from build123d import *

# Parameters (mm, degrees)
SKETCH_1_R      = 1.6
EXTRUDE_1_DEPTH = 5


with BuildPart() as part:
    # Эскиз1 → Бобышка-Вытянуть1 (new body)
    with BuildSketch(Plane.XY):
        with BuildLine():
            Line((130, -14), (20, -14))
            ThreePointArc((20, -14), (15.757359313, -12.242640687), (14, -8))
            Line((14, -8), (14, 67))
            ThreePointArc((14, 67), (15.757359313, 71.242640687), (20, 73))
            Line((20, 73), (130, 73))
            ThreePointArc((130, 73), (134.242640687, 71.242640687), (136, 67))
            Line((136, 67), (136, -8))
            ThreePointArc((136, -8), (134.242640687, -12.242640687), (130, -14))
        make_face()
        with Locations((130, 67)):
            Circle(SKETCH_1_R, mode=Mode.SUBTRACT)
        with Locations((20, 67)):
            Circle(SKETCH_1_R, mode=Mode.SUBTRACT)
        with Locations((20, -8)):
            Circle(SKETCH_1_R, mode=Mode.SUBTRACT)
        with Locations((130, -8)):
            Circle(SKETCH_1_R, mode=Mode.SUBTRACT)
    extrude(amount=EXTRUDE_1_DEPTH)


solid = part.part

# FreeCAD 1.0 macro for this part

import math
import FreeCAD as App
import Part
import Sketcher
from FreeCAD import Vector

doc = App.newDocument("Part")
params = doc.addObject("Spreadsheet::Sheet", "Params")
for row, (alias, value) in enumerate([
    ("sketch1_radius", "6 mm"),
    ("sketch1_diameter", "3.2 mm"),
    ("sketch1_width", "110 mm"),
    ("sketch1_height", "75 mm"),
    ("pad1_length", "5 mm"),
], start=1):
    params.set(f"A{row}", alias)
    params.set(f"B{row}", "=" + value)
    params.setAlias(f"B{row}", alias)

body = doc.addObject("PartDesign::Body", "Body")

# Sketch on XY plane
sketch1 = body.newObject("Sketcher::SketchObject", "Sketch")
sketch1.AttachmentSupport = (doc.getObject("XY_Plane"), [""])
sketch1.MapMode = "FlatFace"
sketch1.addGeometry([
    Part.LineSegment(Vector(20, -14, 0), Vector(130, -14, 0)),  # 0
    Part.ArcOfCircle(Part.Circle(Vector(130, -8, 0), Vector(0, 0, 1), 6), math.radians(-90), math.radians(0)),  # 1
    Part.LineSegment(Vector(136, -8, 0), Vector(136, 67, 0)),  # 2
    Part.ArcOfCircle(Part.Circle(Vector(130, 67, 0), Vector(0, 0, 1), 6), math.radians(0), math.radians(90)),  # 3
    Part.LineSegment(Vector(130, 73, 0), Vector(20, 73, 0)),  # 4
    Part.ArcOfCircle(Part.Circle(Vector(20, 67, 0), Vector(0, 0, 1), 6), math.radians(90), math.radians(180)),  # 5
    Part.LineSegment(Vector(14, 67, 0), Vector(14, -8, 0)),  # 6
    Part.ArcOfCircle(Part.Circle(Vector(20, -8, 0), Vector(0, 0, 1), 6), math.radians(180), math.radians(270)),  # 7
    Part.Circle(Vector(130, -8, 0), Vector(0, 0, 1), 1.6),  # 8
    Part.Circle(Vector(20, -8, 0), Vector(0, 0, 1), 1.6),  # 9
    Part.Circle(Vector(130, 67, 0), Vector(0, 0, 1), 1.6),  # 10
    Part.Circle(Vector(20, 67, 0), Vector(0, 0, 1), 1.6),  # 11
], False)
sketch1.addConstraint([
    Sketcher.Constraint("Tangent", 0, 2, 1, 1),
    Sketcher.Constraint("Tangent", 1, 2, 2, 1),
    Sketcher.Constraint("Tangent", 2, 2, 3, 1),
    Sketcher.Constraint("Tangent", 3, 2, 4, 1),
    Sketcher.Constraint("Tangent", 4, 2, 5, 1),
    Sketcher.Constraint("Tangent", 5, 2, 6, 1),
    Sketcher.Constraint("Tangent", 6, 2, 7, 1),
    Sketcher.Constraint("Tangent", 7, 2, 0, 1),
    Sketcher.Constraint("Horizontal", 0),
    Sketcher.Constraint("Vertical", 2),
    Sketcher.Constraint("Horizontal", 4),
    Sketcher.Constraint("Vertical", 6),
    Sketcher.Constraint("Coincident", 8, 3, 1, 3),
    Sketcher.Constraint("Coincident", 9, 3, 7, 3),
    Sketcher.Constraint("Coincident", 10, 3, 3, 3),
    Sketcher.Constraint("Coincident", 11, 3, 5, 3),
    Sketcher.Constraint("Equal", 1, 3),
    Sketcher.Constraint("Equal", 3, 5),
    Sketcher.Constraint("Equal", 5, 7),
    Sketcher.Constraint("Equal", 8, 9),
    Sketcher.Constraint("Equal", 9, 10),
    Sketcher.Constraint("Equal", 10, 11),
    Sketcher.Constraint("Radius", 1, 6.0),
    Sketcher.Constraint("Diameter", 8, 3.2),
    Sketcher.Constraint("DistanceX", 0, 1, 0, 2, 110.0),
    Sketcher.Constraint("DistanceY", 2, 1, 2, 2, 75.0),
    Sketcher.Constraint("DistanceX", -1, 1, 1, 3, 130.0),
    Sketcher.Constraint("DistanceY", 1, 3, -1, 1, 8.0),
])
sketch1.setExpression("Constraints[22]", "Params.sketch1_radius")
sketch1.setExpression("Constraints[23]", "Params.sketch1_diameter")
sketch1.setExpression("Constraints[24]", "Params.sketch1_width")
sketch1.setExpression("Constraints[25]", "Params.sketch1_height")
pad1 = body.newObject("PartDesign::Pad", "Pad")
pad1.Profile = sketch1
pad1.setExpression("Length", "Params.pad1_length")

doc.recompute()
